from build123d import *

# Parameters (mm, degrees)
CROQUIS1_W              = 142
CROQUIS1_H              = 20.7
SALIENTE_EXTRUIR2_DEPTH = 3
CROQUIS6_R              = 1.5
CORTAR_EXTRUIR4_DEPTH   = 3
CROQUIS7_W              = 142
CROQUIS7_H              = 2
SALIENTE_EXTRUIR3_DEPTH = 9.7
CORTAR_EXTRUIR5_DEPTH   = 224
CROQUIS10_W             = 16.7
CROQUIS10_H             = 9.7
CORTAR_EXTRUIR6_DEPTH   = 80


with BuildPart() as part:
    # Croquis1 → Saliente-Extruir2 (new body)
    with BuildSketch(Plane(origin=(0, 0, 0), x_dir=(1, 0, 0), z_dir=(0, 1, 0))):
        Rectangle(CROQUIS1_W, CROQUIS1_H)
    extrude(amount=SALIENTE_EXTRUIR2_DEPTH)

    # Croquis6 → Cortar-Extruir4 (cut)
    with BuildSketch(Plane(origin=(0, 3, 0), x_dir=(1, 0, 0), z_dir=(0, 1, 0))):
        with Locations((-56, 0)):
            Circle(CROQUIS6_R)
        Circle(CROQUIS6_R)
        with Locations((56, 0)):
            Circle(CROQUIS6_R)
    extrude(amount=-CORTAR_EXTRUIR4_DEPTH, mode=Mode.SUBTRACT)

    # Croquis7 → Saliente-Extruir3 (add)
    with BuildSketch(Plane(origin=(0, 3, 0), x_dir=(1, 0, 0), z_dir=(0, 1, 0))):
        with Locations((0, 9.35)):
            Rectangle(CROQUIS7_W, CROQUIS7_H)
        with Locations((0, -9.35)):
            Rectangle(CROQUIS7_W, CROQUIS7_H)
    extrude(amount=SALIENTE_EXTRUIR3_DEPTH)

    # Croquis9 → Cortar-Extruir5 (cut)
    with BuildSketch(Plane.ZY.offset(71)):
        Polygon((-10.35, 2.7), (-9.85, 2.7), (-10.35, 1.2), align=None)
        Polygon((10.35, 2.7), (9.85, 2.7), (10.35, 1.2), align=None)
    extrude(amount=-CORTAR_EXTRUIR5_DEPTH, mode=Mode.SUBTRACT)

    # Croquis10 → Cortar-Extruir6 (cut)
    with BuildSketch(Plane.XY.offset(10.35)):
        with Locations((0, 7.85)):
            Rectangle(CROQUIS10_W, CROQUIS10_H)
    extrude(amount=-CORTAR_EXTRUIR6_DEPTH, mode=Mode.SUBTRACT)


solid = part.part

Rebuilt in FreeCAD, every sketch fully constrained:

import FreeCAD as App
import Part
import Sketcher
from FreeCAD import Vector


def add_polygon(sketch, points):
    """Adds a closed chain of lines whose ends are joined by coincident constraints."""
    first, n = sketch.GeometryCount, len(points)
    for a, b in zip(points, points[1:] + points[:1]):
        sketch.addGeometry(Part.LineSegment(App.Vector(*a, 0), App.Vector(*b, 0)), False)
    for i in range(n):
        sketch.addConstraint(Sketcher.Constraint("Coincident", first + i, 2, first + (i + 1) % n, 1))

doc = App.newDocument("Part")
params = doc.addObject("Spreadsheet::Sheet", "Params")
for row, (alias, value) in enumerate([
    ("sketch1_width", "142 mm"),
    ("sketch1_height", "20.7 mm"),
    ("pad1_length", "3 mm"),
    ("sketch2_diameter", "3 mm"),
    ("pocket1_length", "3 mm"),
    ("sketch3_width", "142 mm"),
    ("sketch3_height", "2 mm"),
    ("pad2_length", "9.7 mm"),
    ("sketch4_width", "1.5 mm"),
    ("sketch4_height", "0.5 mm"),
    ("pocket2_length", "224 mm"),
    ("sketch5_width", "16.7 mm"),
    ("sketch5_height", "9.7 mm"),
    ("pocket3_length", "80 mm"),
], start=1):
    params.set(f"A{row}", alias)
    params.set(f"B{row}", "=" + value)
    params.setAlias(f"B{row}", alias)

body = doc.addObject("PartDesign::Body", "Body")

sketch1 = body.newObject("Sketcher::SketchObject", "Sketch")
sketch1.AttachmentSupport = (doc.getObject("XZ_Plane"), [""])
sketch1.MapMode = "FlatFace"
add_polygon(sketch1, [(-71, -10), (-71, 10), (71, 10), (71, -10)])
sketch1.addConstraint(Sketcher.Constraint("Vertical", 0))
sketch1.addConstraint(Sketcher.Constraint("Horizontal", 1))
sketch1.addConstraint(Sketcher.Constraint("Vertical", 2))
sketch1.addConstraint(Sketcher.Constraint("Horizontal", 3))
sketch1.addConstraint(Sketcher.Constraint("Symmetric", 0, 2, 2, 2, -1, 1))
sketch1.addConstraint(Sketcher.Constraint("DistanceX", 1, 1, 1, 2, 142.0))
sketch1.addConstraint(Sketcher.Constraint("DistanceY", 0, 1, 0, 2, 20.7))
sketch1.setExpression("Constraints[9]", "Params.sketch1_width")
sketch1.setExpression("Constraints[10]", "Params.sketch1_height")
pad1 = body.newObject("PartDesign::Pad", "Pad")
pad1.Profile = sketch1
pad1.setExpression("Length", "Params.pad1_length")
pad1.Reversed = True

sketch2 = body.newObject("Sketcher::SketchObject", "Sketch001")
sketch2.AttachmentSupport = (doc.getObject("XZ_Plane"), [""])
sketch2.MapMode = "FlatFace"
sketch2.AttachmentOffset = App.Placement(Vector(0, 0, -3), App.Rotation())
sketch2.addGeometry(Part.Circle(Vector(-56, 0, 0), Vector(0, 0, 1), 1.5), False)
sketch2.addGeometry(Part.Circle(Vector(0, 0, 0), Vector(0, 0, 1), 1.5), False)
sketch2.addGeometry(Part.Circle(Vector(56, 0, 0), Vector(0, 0, 1), 1.5), False)
sketch2.addConstraint(Sketcher.Constraint("Coincident", 1, 3, -1, 1))
sketch2.addConstraint(Sketcher.Constraint("Equal", 0, 1))
sketch2.addConstraint(Sketcher.Constraint("Equal", 1, 2))
sketch2.addConstraint(Sketcher.Constraint("Symmetric", 0, 3, 2, 3, -1, 1))
sketch2.addConstraint(Sketcher.Constraint("PointOnObject", 0, 3, -1))
sketch2.addConstraint(Sketcher.Constraint("Diameter", 0, 3.0))
sketch2.addConstraint(Sketcher.Constraint("DistanceX", 0, 3, -1, 1, 56.0))
sketch2.setExpression("Constraints[5]", "Params.sketch2_diameter")
pocket1 = body.newObject("PartDesign::Pocket", "Pocket")
pocket1.Profile = sketch2
pocket1.setExpression("Length", "Params.pocket1_length")
pocket1.Reversed = True

sketch3 = body.newObject("Sketcher::SketchObject", "Sketch002")
sketch3.AttachmentSupport = (doc.getObject("XZ_Plane"), [""])
sketch3.MapMode = "FlatFace"
sketch3.AttachmentOffset = App.Placement(Vector(0, 0, -3), App.Rotation())
add_polygon(sketch3, [(-71, -10.3), (-71, -8.3), (71, -8.3), (71, -10.3)])
add_polygon(sketch3, [(-71, 8.3), (-71, 10.3), (71, 10.3), (71, 8.3)])
sketch3.addConstraint(Sketcher.Constraint("Vertical", 0))
sketch3.addConstraint(Sketcher.Constraint("Horizontal", 1))
sketch3.addConstraint(Sketcher.Constraint("Vertical", 2))
sketch3.addConstraint(Sketcher.Constraint("Horizontal", 3))
sketch3.addConstraint(Sketcher.Constraint("Vertical", 4))
sketch3.addConstraint(Sketcher.Constraint("Horizontal", 5))
sketch3.addConstraint(Sketcher.Constraint("Vertical", 6))
sketch3.addConstraint(Sketcher.Constraint("Horizontal", 7))
sketch3.addConstraint(Sketcher.Constraint("Symmetric", 2, 2, 4, 2, -1, 1))
sketch3.addConstraint(Sketcher.Constraint("Symmetric", 0, 2, 6, 2, -1, 1))
sketch3.addConstraint(Sketcher.Constraint("Vertical", 3, 2, 4, 2))
sketch3.addConstraint(Sketcher.Constraint("DistanceX", 1, 1, 1, 2, 142.0))
sketch3.addConstraint(Sketcher.Constraint("DistanceY", 0, 1, 0, 2, 2.0))
sketch3.addConstraint(Sketcher.Constraint("DistanceY", 0, 2, 4, 2, 18.7))
sketch3.setExpression("Constraints[19]", "Params.sketch3_width")
sketch3.setExpression("Constraints[20]", "Params.sketch3_height")
pad2 = body.newObject("PartDesign::Pad", "Pad001")
pad2.Profile = sketch3
pad2.setExpression("Length", "Params.pad2_length")
pad2.Reversed = True

sketch4 = body.newObject("Sketcher::SketchObject", "Sketch003")
sketch4.AttachmentSupport = (doc.getObject("YZ_Plane"), [""])
sketch4.MapMode = "FlatFace"
sketch4.AttachmentOffset = App.Placement(Vector(0, 0, -71), App.Rotation())
add_polygon(sketch4, [(2.7, -9.8), (2.7, -10.3), (1.2, -10.3)])
add_polygon(sketch4, [(2.7, 10.3), (2.7, 9.8), (1.2, 10.3)])
sketch4.addConstraint(Sketcher.Constraint("Vertical", 0))
sketch4.addConstraint(Sketcher.Constraint("Horizontal", 1))
sketch4.addConstraint(Sketcher.Constraint("Vertical", 3))
sketch4.addConstraint(Sketcher.Constraint("Horizontal", 5))
sketch4.addConstraint(Sketcher.Constraint("Symmetric", 2, 2, 3, 2, -1))
sketch4.addConstraint(Sketcher.Constraint("Symmetric", 1, 2, 4, 2, -1))
sketch4.addConstraint(Sketcher.Constraint("DistanceX", 1, 2, 1, 1, 1.5))
sketch4.addConstraint(Sketcher.Constraint("DistanceY", 0, 2, 0, 1, 0.5))
sketch4.addConstraint(Sketcher.Constraint("DistanceX", -1, 1, 0, 2, 2.7))
sketch4.addConstraint(Sketcher.Constraint("DistanceY", 2, 2, 3, 2, 19.7))
sketch4.setExpression("Constraints[12]", "Params.sketch4_width")
sketch4.setExpression("Constraints[13]", "Params.sketch4_height")
pocket2 = body.newObject("PartDesign::Pocket", "Pocket001")
pocket2.Profile = sketch4
pocket2.setExpression("Length", "Params.pocket2_length")
pocket2.Reversed = True

sketch5 = body.newObject("Sketcher::SketchObject", "Sketch004")
sketch5.AttachmentSupport = (doc.getObject("XY_Plane"), [""])
sketch5.MapMode = "FlatFace"
sketch5.AttachmentOffset = App.Placement(Vector(0, 0, 10.35), App.Rotation())
add_polygon(sketch5, [(-8, 13), (-8, 3), (8, 3), (8, 13)])
sketch5.addConstraint(Sketcher.Constraint("Vertical", 0))
sketch5.addConstraint(Sketcher.Constraint("Horizontal", 1))
sketch5.addConstraint(Sketcher.Constraint("Vertical", 2))
sketch5.addConstraint(Sketcher.Constraint("Horizontal", 3))
sketch5.addConstraint(Sketcher.Constraint("DistanceX", 1, 1, 1, 2, 16.7))
sketch5.addConstraint(Sketcher.Constraint("DistanceY", 0, 2, 0, 1, 9.7))
sketch5.addConstraint(Sketcher.Constraint("DistanceY", -1, 1, 0, 2, 3.0))
sketch5.addConstraint(Sketcher.Constraint("DistanceX", 0, 2, -1, 1, 8.35))
sketch5.setExpression("Constraints[8]", "Params.sketch5_width")
sketch5.setExpression("Constraints[9]", "Params.sketch5_height")
pocket3 = body.newObject("PartDesign::Pocket", "Pocket002")
pocket3.Profile = sketch5
pocket3.setExpression("Length", "Params.pocket3_length")

doc.recompute()
